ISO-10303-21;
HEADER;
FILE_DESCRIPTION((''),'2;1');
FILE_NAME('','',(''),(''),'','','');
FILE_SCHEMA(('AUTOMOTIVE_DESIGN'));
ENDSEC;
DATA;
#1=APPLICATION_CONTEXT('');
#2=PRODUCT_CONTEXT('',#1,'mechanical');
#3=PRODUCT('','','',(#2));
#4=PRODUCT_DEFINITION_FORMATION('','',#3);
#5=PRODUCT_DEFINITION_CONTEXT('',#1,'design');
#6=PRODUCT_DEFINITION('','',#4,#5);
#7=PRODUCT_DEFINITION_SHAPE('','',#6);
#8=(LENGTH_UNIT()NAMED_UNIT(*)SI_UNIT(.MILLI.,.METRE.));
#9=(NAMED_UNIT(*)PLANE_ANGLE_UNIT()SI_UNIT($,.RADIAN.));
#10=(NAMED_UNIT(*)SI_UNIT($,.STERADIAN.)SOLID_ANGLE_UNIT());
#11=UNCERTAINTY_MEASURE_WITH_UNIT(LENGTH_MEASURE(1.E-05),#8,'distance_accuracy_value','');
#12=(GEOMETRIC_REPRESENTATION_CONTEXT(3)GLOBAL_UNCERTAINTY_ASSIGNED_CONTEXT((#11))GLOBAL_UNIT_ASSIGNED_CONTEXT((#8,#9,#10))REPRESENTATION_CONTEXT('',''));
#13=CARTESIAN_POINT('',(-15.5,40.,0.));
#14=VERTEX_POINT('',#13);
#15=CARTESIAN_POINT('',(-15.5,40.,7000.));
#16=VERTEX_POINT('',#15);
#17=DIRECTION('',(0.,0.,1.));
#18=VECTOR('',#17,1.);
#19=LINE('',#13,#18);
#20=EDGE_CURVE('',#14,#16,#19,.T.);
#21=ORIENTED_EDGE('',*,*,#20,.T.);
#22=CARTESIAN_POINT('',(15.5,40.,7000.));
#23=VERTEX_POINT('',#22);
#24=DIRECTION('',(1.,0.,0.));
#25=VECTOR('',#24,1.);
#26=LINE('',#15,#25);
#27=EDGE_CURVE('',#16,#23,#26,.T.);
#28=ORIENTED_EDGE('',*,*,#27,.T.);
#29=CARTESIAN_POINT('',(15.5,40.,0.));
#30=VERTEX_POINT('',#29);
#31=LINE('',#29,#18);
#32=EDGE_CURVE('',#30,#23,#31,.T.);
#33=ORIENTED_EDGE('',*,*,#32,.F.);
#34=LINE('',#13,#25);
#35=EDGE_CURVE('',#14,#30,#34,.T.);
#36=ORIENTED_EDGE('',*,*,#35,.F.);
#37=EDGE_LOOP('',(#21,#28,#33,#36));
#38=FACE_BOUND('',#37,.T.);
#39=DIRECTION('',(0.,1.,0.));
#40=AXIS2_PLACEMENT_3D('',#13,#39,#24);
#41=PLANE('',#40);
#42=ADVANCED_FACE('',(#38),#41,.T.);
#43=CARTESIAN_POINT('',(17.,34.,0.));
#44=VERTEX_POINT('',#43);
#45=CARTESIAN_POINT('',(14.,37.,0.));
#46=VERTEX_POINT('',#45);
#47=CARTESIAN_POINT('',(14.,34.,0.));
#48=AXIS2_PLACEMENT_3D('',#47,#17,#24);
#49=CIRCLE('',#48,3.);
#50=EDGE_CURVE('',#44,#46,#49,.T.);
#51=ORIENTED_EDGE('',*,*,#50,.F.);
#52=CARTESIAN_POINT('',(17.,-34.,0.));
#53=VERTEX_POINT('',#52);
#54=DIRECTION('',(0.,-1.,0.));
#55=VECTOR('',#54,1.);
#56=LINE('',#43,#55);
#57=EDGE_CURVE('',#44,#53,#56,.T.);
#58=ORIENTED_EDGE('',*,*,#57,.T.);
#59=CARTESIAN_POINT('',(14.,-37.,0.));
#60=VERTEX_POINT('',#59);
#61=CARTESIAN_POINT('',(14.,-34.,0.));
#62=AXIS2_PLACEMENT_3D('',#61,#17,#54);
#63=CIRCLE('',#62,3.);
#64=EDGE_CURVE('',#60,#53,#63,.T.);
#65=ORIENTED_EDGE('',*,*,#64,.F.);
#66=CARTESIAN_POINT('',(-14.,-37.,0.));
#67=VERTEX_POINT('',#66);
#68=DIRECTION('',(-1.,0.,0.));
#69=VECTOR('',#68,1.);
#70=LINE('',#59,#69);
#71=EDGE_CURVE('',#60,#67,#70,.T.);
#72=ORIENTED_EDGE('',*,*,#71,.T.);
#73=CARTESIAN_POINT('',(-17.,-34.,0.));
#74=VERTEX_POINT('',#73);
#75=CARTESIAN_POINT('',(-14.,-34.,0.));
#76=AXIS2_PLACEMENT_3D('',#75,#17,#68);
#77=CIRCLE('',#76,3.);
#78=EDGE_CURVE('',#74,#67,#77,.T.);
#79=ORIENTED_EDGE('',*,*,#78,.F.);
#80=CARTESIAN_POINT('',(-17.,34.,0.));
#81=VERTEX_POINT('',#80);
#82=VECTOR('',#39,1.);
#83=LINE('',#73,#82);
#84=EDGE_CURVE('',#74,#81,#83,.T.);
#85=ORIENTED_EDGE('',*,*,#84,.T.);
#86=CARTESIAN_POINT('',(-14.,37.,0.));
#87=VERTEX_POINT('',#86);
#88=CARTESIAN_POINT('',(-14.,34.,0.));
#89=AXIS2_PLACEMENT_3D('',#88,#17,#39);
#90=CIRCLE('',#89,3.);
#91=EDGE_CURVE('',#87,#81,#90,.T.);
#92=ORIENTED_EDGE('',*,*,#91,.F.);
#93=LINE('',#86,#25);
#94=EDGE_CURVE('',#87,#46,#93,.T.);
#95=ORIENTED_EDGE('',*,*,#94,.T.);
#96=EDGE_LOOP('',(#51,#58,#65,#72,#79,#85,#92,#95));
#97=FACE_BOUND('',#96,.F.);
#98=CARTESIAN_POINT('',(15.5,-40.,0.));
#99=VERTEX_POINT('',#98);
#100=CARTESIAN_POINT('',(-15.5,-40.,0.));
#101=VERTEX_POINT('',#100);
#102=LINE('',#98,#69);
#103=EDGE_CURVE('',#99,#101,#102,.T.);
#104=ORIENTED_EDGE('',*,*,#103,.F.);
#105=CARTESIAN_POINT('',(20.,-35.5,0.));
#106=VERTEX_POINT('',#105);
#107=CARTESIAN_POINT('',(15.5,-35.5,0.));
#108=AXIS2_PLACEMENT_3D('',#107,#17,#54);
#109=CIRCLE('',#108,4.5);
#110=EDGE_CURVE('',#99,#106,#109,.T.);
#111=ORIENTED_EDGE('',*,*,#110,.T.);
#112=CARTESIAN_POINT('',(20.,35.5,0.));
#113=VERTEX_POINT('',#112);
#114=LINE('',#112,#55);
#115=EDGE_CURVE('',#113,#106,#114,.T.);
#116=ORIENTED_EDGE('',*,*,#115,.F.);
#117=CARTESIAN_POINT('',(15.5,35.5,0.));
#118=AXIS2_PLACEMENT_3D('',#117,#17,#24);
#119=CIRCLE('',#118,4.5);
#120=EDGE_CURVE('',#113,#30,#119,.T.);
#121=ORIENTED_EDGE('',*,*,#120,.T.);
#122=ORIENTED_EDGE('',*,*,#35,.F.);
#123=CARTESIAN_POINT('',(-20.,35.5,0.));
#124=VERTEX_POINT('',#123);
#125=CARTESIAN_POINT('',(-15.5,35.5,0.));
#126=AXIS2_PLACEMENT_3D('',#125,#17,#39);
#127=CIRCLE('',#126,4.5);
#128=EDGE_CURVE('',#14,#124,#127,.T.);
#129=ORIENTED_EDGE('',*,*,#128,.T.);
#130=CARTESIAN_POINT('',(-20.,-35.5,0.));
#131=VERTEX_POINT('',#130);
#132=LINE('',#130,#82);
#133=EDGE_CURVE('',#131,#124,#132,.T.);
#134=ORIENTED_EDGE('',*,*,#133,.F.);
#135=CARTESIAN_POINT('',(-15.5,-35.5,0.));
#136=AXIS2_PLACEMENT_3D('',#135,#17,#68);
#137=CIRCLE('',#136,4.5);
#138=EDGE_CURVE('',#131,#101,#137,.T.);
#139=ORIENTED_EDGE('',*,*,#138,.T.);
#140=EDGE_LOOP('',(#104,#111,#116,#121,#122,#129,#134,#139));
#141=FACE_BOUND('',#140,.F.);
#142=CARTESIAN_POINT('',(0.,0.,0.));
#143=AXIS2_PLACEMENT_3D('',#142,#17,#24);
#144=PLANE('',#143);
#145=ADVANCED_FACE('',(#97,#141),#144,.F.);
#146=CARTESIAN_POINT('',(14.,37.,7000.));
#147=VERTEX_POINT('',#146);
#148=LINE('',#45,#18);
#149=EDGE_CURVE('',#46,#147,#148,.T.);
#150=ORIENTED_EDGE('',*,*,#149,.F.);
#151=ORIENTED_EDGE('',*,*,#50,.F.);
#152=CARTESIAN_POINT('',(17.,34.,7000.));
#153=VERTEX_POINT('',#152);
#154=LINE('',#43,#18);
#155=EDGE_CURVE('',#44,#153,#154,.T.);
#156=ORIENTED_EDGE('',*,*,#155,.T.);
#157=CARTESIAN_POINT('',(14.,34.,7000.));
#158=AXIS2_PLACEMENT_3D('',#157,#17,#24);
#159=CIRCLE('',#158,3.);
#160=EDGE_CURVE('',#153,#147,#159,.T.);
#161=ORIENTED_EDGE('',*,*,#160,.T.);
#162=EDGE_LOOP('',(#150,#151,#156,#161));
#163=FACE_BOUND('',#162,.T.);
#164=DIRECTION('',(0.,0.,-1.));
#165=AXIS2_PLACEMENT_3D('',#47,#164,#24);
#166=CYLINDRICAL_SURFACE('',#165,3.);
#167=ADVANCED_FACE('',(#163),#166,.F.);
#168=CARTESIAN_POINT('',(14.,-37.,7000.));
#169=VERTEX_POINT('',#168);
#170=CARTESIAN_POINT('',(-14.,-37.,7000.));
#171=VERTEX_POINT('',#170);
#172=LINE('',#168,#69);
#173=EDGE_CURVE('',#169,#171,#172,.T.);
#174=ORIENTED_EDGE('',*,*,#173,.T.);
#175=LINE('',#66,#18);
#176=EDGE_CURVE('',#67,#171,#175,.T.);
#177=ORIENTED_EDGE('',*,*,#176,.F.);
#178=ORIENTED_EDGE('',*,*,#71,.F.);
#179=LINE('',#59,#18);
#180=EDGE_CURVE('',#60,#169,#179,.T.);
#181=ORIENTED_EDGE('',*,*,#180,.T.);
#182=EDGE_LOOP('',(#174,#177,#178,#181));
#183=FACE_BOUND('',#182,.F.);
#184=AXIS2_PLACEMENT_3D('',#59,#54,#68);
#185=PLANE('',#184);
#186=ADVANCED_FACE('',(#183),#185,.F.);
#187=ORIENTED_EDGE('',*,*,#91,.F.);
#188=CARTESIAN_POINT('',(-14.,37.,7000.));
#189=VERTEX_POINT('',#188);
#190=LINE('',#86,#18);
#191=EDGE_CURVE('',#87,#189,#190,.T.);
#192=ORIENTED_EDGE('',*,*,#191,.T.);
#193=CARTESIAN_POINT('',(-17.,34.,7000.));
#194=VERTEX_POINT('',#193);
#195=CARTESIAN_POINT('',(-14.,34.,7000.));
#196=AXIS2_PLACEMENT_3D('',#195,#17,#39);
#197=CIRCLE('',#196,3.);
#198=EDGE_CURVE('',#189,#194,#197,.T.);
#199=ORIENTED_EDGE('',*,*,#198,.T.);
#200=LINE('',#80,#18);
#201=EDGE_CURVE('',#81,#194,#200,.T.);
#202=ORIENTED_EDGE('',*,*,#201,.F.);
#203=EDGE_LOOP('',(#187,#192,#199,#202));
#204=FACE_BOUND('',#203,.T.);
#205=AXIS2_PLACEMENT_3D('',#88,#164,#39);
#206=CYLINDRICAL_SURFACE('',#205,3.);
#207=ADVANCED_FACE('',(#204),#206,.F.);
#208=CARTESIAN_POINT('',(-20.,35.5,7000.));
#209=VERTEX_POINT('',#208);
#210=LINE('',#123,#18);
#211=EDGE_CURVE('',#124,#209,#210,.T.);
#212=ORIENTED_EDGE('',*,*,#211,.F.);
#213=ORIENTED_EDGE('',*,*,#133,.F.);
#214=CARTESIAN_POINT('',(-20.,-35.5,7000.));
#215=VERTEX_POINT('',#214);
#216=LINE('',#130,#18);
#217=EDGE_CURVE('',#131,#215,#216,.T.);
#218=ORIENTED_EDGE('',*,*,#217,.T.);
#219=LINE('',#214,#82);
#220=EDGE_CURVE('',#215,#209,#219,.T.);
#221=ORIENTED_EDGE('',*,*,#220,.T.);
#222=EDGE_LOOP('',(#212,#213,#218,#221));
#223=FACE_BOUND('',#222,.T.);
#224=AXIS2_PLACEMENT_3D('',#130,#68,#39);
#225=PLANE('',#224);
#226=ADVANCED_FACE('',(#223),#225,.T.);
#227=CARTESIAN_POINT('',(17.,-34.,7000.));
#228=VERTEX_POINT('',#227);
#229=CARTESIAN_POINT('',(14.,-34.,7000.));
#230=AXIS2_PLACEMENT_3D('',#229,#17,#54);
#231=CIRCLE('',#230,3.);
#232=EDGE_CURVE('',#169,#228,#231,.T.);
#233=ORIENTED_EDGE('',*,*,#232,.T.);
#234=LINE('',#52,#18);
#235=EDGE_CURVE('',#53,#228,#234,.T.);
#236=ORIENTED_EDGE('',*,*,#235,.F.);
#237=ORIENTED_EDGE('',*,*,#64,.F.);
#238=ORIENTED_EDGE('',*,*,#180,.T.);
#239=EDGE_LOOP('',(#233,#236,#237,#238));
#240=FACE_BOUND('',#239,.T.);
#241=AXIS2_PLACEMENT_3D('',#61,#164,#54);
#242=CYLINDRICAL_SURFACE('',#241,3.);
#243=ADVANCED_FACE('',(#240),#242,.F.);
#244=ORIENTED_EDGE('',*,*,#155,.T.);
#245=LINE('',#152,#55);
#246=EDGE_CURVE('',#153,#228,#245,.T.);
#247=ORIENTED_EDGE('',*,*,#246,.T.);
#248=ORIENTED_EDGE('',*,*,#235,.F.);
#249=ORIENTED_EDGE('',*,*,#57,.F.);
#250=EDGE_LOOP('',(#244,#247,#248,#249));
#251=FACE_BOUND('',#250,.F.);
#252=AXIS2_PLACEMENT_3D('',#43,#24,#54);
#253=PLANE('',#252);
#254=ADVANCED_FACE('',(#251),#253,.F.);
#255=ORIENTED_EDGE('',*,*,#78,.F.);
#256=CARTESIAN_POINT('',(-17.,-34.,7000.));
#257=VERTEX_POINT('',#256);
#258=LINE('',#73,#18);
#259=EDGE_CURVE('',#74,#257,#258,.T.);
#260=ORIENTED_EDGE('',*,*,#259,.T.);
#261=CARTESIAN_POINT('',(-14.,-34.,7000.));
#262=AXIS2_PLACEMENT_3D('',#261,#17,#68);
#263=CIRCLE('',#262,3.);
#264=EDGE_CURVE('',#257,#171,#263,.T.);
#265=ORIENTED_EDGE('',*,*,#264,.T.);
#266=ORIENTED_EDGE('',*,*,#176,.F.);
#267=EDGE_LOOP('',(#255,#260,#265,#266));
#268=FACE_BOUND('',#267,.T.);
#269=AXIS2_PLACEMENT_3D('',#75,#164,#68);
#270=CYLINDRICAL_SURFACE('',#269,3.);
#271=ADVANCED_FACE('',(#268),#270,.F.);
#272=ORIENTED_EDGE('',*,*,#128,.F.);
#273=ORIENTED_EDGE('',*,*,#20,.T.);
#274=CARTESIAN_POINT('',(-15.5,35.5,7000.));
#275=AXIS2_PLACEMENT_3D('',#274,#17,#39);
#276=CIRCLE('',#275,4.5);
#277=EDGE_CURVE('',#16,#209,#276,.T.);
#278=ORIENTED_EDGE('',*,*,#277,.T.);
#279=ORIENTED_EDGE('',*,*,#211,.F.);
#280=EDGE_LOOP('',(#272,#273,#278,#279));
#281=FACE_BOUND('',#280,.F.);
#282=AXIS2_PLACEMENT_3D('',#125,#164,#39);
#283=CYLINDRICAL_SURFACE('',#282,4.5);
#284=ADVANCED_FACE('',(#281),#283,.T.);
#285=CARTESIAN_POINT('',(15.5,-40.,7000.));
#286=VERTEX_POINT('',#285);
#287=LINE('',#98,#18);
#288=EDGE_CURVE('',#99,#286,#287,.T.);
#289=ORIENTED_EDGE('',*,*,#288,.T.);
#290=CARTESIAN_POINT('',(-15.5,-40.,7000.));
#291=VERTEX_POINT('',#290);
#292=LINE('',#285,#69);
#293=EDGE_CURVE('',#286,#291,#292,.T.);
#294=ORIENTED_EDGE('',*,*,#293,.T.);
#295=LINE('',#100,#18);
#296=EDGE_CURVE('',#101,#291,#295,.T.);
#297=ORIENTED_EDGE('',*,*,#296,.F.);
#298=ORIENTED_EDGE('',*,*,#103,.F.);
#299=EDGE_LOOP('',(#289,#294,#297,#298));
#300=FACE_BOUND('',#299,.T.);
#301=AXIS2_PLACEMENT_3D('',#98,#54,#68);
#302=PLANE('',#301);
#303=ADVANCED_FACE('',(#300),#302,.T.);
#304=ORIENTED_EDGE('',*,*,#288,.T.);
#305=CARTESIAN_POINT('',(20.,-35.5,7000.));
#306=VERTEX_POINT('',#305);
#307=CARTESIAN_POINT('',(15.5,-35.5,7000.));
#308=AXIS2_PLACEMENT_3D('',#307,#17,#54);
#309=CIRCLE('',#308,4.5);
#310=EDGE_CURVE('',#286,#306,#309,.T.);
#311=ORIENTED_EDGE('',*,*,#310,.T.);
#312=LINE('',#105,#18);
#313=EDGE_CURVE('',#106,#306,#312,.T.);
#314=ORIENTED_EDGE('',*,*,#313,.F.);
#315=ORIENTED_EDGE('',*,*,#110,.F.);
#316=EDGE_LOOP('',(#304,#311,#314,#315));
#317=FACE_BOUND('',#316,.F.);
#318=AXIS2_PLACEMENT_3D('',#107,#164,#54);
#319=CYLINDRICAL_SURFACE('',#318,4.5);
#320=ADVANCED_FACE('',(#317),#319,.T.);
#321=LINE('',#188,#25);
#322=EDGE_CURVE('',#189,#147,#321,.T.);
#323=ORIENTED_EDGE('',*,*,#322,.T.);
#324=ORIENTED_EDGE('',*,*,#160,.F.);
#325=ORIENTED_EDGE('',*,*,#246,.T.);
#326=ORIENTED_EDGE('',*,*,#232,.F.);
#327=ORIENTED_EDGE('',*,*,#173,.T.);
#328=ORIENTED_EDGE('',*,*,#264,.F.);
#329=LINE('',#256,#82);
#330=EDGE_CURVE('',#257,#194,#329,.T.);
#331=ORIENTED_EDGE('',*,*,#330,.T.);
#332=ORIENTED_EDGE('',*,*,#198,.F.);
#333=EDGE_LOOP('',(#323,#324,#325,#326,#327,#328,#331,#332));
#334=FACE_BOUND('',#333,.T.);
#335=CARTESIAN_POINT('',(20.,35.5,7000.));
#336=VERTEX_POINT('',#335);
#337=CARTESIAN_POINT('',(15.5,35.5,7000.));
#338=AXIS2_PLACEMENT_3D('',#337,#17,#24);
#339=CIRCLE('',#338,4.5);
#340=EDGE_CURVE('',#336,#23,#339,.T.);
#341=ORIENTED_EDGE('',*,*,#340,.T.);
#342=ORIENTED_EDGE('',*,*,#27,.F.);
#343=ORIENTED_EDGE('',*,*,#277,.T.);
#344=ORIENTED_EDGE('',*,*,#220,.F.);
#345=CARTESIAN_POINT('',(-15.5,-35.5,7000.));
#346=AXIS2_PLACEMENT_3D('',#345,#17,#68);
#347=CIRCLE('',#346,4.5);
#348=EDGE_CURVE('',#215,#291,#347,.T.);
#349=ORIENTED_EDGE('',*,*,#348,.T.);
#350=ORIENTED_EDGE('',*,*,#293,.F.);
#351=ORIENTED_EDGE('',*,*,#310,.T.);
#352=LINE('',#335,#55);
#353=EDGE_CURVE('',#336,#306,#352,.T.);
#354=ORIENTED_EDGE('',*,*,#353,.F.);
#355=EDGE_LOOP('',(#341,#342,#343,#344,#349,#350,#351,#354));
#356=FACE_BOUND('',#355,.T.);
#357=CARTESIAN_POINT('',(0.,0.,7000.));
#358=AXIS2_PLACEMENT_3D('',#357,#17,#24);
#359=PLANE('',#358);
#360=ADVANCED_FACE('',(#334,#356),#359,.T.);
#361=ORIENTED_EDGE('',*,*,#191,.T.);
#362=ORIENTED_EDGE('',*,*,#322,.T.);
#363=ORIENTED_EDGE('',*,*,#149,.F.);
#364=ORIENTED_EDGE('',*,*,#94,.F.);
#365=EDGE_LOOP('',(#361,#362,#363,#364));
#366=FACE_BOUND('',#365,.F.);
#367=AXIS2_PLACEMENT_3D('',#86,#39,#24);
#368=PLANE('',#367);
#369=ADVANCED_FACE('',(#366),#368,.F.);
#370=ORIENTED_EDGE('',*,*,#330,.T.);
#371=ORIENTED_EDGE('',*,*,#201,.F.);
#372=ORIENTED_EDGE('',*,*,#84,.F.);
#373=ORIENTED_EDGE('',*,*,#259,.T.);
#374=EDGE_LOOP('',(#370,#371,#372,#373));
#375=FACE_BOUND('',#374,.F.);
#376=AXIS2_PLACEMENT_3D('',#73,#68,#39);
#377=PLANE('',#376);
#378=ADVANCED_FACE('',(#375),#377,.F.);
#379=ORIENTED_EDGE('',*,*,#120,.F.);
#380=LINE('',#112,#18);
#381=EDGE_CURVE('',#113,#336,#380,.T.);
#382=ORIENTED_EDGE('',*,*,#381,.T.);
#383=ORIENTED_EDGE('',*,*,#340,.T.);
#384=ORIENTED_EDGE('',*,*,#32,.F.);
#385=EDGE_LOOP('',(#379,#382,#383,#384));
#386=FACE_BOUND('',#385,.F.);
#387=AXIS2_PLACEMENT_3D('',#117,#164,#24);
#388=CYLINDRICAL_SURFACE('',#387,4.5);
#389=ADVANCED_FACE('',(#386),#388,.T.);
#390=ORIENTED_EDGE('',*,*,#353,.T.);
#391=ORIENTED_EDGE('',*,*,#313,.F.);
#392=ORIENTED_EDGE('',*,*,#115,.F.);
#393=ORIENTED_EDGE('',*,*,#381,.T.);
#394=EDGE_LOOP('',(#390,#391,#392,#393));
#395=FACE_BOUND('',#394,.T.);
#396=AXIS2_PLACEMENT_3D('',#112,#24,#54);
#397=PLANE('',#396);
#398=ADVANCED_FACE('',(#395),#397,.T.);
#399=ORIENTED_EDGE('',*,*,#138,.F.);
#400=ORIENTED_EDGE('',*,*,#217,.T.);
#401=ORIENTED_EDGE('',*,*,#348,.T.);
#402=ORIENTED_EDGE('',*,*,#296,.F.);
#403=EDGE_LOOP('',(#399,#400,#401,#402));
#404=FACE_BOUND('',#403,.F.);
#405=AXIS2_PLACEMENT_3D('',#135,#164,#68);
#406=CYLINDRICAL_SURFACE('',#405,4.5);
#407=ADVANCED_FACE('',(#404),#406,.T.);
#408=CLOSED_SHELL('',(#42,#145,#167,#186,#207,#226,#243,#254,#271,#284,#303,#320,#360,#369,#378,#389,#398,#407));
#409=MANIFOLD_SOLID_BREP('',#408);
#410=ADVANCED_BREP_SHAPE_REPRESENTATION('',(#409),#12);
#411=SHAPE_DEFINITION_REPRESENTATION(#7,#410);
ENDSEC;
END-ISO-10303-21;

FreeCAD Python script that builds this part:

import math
import FreeCAD as App
import Part
import Sketcher
from FreeCAD import Vector
Q = App.Units.Quantity

doc = App.newDocument("Part")
body = doc.addObject("PartDesign::Body", "Body")

# Sketch on XY plane
sketch1 = body.newObject("Sketcher::SketchObject", "Sketch")
sketch1.AttachmentSupport = (doc.getObject("XY_Plane"), [""])
sketch1.MapMode = "FlatFace"
sketch1.addGeometry(Part.LineSegment(Vector(-20, 35.5, 0), Vector(-20, -35.5, 0)), False)
sketch1.addGeometry(Part.ArcOfCircle(Part.Circle(Vector(-15.5, -35.5, 0), Vector(0, 0, 1), 4.5), math.radians(180), math.radians(270)), False)
sketch1.addGeometry(Part.LineSegment(Vector(-15.5, -40, 0), Vector(15.5, -40, 0)), False)
sketch1.addGeometry(Part.ArcOfCircle(Part.Circle(Vector(15.5, -35.5, 0), Vector(0, 0, 1), 4.5), math.radians(-90), math.radians(0)), False)
sketch1.addGeometry(Part.LineSegment(Vector(20, -35.5, 0), Vector(20, 35.5, 0)), False)
sketch1.addGeometry(Part.ArcOfCircle(Part.Circle(Vector(15.5, 35.5, 0), Vector(0, 0, 1), 4.5), math.radians(0), math.radians(90)), False)
sketch1.addGeometry(Part.LineSegment(Vector(15.5, 40, 0), Vector(-15.5, 40, 0)), False)
sketch1.addGeometry(Part.ArcOfCircle(Part.Circle(Vector(-15.5, 35.5, 0), Vector(0, 0, 1), 4.5), math.radians(90), math.radians(180)), False)
sketch1.addGeometry(Part.ArcOfCircle(Part.Circle(Vector(-14, 34, 0), Vector(0, 0, 1), 3), math.radians(90), math.radians(180)), False)
sketch1.addGeometry(Part.LineSegment(Vector(-14, 37, 0), Vector(14, 37, 0)), False)
sketch1.addGeometry(Part.ArcOfCircle(Part.Circle(Vector(14, 34, 0), Vector(0, 0, 1), 3), math.radians(0), math.radians(90)), False)
sketch1.addGeometry(Part.LineSegment(Vector(17, 34, 0), Vector(17, -34, 0)), False)
sketch1.addGeometry(Part.ArcOfCircle(Part.Circle(Vector(14, -34, 0), Vector(0, 0, 1), 3), math.radians(-90), math.radians(0)), False)
sketch1.addGeometry(Part.LineSegment(Vector(14, -37, 0), Vector(-14, -37, 0)), False)
sketch1.addGeometry(Part.ArcOfCircle(Part.Circle(Vector(-14, -34, 0), Vector(0, 0, 1), 3), math.radians(180), math.radians(270)), False)
sketch1.addGeometry(Part.LineSegment(Vector(-17, -34, 0), Vector(-17, 34, 0)), False)
sketch1.addConstraint(Sketcher.Constraint("Tangent", 0, 2, 1, 1))
sketch1.addConstraint(Sketcher.Constraint("Tangent", 1, 2, 2, 1))
sketch1.addConstraint(Sketcher.Constraint("Tangent", 2, 2, 3, 1))
sketch1.addConstraint(Sketcher.Constraint("Tangent", 3, 2, 4, 1))
sketch1.addConstraint(Sketcher.Constraint("Tangent", 4, 2, 5, 1))
sketch1.addConstraint(Sketcher.Constraint("Tangent", 5, 2, 6, 1))
sketch1.addConstraint(Sketcher.Constraint("Tangent", 6, 2, 7, 1))
sketch1.addConstraint(Sketcher.Constraint("Tangent", 7, 2, 0, 1))
sketch1.addConstraint(Sketcher.Constraint("Tangent", 8, 1, 9, 1))
sketch1.addConstraint(Sketcher.Constraint("Tangent", 9, 2, 10, 2))
sketch1.addConstraint(Sketcher.Constraint("Tangent", 10, 1, 11, 1))
sketch1.addConstraint(Sketcher.Constraint("Tangent", 11, 2, 12, 2))
sketch1.addConstraint(Sketcher.Constraint("Tangent", 12, 1, 13, 1))
sketch1.addConstraint(Sketcher.Constraint("Tangent", 13, 2, 14, 2))
sketch1.addConstraint(Sketcher.Constraint("Tangent", 14, 1, 15, 1))
sketch1.addConstraint(Sketcher.Constraint("Tangent", 15, 2, 8, 2))
sketch1.addConstraint(Sketcher.Constraint("Vertical", 0))
sketch1.addConstraint(Sketcher.Constraint("Horizontal", 2))
sketch1.addConstraint(Sketcher.Constraint("Vertical", 4))
sketch1.addConstraint(Sketcher.Constraint("Horizontal", 6))
sketch1.addConstraint(Sketcher.Constraint("Horizontal", 9))
sketch1.addConstraint(Sketcher.Constraint("Vertical", 11))
sketch1.addConstraint(Sketcher.Constraint("Horizontal", 13))
sketch1.addConstraint(Sketcher.Constraint("Vertical", 15))
sketch1.addConstraint(Sketcher.Constraint("Equal", 1, 3))
sketch1.addConstraint(Sketcher.Constraint("Equal", 3, 5))
sketch1.addConstraint(Sketcher.Constraint("Equal", 5, 7))
sketch1.addConstraint(Sketcher.Constraint("Equal", 8, 10))
sketch1.addConstraint(Sketcher.Constraint("Equal", 10, 12))
sketch1.addConstraint(Sketcher.Constraint("Equal", 12, 14))
sketch1.addConstraint(Sketcher.Constraint("Symmetric", 1, 3, 5, 3, -1, 1))
sketch1.addConstraint(Sketcher.Constraint("Symmetric", 8, 3, 12, 3, -1, 1))
sketch1.addConstraint(Sketcher.Constraint("Radius", 8, Q("3 mm")))
sketch1.addConstraint(Sketcher.Constraint("Radius", 1, Q("4.5 mm")))
sketch1.addConstraint(Sketcher.Constraint("DistanceX", 0, 2, -1, 1, Q("20 mm")))
sketch1.addConstraint(Sketcher.Constraint("DistanceY", 1, 2, -1, 1, Q("40 mm")))
sketch1.addConstraint(Sketcher.Constraint("DistanceY", 8, 1, 6, 2, Q("3 mm")))
sketch1.addConstraint(Sketcher.Constraint("DistanceX", 10, 1, 4, 2, Q("3 mm")))
pad1 = body.newObject("PartDesign::Pad", "Pad")
pad1.Profile = sketch1
pad1.Length = 7000

doc.recompute()
